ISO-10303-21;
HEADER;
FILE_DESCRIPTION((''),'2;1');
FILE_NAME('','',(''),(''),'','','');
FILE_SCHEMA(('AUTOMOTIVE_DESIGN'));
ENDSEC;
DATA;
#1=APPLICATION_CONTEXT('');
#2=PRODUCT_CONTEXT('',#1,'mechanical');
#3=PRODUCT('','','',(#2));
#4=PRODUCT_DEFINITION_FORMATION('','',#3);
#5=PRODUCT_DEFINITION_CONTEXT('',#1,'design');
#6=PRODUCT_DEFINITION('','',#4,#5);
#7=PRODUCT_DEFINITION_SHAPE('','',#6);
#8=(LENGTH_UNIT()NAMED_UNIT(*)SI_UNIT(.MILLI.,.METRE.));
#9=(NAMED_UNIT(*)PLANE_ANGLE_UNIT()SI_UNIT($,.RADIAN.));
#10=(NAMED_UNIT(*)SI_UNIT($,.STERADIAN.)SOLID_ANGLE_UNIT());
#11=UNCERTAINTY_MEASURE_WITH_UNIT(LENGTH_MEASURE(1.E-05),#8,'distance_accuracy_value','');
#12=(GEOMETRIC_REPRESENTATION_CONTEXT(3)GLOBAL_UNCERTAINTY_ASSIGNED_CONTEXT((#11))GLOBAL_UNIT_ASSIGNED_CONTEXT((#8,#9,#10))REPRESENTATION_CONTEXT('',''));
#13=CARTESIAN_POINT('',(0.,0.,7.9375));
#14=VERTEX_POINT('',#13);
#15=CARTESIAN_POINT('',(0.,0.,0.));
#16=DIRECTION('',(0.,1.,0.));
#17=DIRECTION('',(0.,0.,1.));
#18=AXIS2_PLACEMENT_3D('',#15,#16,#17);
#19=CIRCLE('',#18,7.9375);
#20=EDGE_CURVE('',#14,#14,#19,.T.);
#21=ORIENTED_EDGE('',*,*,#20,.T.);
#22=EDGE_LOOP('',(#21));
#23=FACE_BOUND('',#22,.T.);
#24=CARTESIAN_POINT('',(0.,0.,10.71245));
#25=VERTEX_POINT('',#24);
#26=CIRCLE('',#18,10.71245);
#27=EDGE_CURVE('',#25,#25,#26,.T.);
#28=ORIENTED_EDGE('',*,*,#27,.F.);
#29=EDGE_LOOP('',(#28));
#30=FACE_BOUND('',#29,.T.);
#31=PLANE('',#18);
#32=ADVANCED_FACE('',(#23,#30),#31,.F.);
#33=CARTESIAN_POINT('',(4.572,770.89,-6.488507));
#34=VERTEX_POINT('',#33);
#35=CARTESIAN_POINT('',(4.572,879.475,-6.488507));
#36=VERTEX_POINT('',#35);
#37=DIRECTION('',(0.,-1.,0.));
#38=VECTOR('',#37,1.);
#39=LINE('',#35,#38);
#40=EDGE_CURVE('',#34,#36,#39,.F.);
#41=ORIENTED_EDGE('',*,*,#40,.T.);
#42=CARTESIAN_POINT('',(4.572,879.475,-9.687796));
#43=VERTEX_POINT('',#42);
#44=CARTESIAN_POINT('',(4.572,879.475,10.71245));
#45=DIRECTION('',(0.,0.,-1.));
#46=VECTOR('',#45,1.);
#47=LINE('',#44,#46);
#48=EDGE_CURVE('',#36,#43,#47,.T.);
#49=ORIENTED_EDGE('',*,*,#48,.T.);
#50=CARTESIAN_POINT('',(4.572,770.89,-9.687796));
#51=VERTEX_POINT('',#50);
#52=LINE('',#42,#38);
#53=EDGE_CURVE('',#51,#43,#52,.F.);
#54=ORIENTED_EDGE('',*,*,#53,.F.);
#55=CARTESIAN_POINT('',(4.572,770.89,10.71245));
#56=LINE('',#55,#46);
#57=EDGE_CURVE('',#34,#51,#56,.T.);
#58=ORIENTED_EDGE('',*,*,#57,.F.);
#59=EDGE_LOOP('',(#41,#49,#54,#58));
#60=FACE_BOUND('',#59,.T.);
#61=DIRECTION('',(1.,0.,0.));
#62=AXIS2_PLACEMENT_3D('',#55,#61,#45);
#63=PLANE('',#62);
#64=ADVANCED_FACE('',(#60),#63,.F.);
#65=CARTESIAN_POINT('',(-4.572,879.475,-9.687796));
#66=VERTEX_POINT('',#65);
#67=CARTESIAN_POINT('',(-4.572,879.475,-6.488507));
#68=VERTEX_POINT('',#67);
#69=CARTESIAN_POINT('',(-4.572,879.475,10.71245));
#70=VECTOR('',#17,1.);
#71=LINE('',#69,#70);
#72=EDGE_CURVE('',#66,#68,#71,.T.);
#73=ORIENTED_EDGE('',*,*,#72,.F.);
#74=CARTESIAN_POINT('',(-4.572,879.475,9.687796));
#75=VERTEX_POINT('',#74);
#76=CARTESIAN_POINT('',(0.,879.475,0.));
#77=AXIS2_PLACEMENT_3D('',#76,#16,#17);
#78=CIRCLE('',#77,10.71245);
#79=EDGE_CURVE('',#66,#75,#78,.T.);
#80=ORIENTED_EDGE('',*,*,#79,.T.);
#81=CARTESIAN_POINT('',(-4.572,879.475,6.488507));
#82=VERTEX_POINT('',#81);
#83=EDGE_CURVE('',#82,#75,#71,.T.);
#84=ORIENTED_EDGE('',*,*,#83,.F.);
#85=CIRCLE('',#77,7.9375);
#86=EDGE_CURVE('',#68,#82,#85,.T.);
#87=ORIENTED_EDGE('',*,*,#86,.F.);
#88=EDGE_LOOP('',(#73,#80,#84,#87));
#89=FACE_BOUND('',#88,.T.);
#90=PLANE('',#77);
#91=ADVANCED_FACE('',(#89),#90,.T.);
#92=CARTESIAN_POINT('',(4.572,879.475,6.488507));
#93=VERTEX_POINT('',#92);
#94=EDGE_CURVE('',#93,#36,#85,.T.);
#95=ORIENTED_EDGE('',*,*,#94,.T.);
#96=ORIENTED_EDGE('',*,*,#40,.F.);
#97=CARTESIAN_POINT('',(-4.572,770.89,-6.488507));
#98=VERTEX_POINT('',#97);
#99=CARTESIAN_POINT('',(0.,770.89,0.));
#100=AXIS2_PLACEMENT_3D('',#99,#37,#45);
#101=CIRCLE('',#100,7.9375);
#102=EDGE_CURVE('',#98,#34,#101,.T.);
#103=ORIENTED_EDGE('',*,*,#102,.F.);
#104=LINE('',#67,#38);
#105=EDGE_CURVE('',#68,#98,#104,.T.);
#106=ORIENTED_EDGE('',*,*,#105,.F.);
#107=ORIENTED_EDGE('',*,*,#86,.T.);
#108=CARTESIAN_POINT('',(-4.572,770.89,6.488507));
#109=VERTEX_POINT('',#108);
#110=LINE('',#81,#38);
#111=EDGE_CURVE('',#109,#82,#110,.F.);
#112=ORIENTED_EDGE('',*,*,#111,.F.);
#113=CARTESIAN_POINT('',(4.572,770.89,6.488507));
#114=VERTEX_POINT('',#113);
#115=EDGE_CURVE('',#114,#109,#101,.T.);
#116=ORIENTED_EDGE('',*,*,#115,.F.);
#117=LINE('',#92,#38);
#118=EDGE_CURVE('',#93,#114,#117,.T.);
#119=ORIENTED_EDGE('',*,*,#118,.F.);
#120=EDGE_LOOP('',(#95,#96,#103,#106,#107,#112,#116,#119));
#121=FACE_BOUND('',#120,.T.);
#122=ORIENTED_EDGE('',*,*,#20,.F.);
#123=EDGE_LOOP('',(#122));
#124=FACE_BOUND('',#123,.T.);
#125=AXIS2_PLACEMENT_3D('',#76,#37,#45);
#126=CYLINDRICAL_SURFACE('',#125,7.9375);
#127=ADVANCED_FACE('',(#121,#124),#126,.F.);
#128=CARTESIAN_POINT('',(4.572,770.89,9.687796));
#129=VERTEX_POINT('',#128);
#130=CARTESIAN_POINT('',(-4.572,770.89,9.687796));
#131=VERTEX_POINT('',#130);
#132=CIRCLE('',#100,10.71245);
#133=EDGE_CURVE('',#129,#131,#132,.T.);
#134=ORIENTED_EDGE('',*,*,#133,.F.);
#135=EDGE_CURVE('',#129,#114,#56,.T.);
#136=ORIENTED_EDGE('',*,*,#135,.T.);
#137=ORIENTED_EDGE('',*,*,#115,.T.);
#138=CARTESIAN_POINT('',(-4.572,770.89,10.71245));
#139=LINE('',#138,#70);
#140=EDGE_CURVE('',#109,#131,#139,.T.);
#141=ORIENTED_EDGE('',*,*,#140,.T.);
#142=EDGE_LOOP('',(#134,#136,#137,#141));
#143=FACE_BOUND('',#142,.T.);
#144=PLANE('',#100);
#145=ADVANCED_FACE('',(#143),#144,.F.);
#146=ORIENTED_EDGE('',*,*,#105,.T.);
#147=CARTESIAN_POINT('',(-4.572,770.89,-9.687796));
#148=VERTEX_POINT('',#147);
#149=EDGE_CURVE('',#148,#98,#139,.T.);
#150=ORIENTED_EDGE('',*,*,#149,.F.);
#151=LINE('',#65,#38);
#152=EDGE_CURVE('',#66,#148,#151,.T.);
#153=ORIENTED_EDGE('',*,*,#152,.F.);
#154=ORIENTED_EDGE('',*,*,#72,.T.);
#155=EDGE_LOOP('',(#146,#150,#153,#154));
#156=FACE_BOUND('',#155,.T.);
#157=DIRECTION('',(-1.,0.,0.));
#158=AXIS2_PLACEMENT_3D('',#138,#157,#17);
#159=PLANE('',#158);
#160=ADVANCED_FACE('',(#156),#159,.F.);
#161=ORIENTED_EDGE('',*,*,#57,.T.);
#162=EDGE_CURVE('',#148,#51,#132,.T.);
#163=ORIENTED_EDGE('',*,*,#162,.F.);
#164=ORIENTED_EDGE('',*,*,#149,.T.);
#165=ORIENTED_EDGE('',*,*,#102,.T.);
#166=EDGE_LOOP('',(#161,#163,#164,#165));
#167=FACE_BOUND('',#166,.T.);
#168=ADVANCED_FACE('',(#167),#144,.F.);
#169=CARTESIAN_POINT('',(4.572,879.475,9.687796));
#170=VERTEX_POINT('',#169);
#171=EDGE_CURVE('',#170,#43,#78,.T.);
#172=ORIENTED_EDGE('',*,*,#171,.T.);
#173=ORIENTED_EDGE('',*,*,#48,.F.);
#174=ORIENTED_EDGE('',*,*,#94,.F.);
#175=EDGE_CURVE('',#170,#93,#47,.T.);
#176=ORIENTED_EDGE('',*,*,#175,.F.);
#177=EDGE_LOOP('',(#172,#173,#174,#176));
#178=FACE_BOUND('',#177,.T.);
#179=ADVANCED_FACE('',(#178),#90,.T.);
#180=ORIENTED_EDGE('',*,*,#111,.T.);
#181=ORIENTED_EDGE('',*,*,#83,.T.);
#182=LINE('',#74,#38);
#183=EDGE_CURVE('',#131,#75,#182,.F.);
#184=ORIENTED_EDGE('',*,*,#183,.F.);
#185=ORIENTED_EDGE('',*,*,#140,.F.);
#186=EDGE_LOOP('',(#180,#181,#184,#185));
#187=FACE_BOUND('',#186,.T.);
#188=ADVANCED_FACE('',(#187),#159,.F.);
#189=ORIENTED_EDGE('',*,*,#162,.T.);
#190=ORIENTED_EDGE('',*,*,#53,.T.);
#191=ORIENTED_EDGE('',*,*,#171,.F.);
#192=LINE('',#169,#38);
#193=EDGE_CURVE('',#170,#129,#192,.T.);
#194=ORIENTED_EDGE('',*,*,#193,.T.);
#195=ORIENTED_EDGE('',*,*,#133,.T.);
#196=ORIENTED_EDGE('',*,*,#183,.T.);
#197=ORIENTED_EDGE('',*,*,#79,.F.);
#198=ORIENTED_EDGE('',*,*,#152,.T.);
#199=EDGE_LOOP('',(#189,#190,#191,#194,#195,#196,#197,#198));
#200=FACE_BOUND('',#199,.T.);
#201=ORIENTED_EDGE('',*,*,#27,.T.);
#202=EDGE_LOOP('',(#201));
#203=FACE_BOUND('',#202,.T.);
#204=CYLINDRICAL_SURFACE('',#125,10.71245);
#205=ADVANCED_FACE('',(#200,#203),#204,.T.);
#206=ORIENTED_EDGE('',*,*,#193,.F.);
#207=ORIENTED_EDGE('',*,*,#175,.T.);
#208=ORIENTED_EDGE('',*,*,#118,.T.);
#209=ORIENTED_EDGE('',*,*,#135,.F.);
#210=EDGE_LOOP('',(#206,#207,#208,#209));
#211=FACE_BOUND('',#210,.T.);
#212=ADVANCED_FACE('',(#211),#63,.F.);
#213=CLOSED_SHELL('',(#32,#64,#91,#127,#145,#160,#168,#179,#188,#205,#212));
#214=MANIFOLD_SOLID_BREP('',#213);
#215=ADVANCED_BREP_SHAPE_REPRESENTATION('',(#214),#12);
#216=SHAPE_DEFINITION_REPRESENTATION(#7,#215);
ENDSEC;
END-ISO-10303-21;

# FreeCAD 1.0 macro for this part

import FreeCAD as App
import Part
import Sketcher
Q = App.Units.Quantity


def add_polygon(sketch, points):
    """Adds a closed chain of lines whose ends are joined by coincident constraints."""
    first, n = sketch.GeometryCount, len(points)
    for a, b in zip(points, points[1:] + points[:1]):
        sketch.addGeometry(Part.LineSegment(App.Vector(*a, 0), App.Vector(*b, 0)), False)
    for i in range(n):
        sketch.addConstraint(Sketcher.Constraint("Coincident", first + i, 2, first + (i + 1) % n, 1))

doc = App.newDocument("Part")
body = doc.addObject("PartDesign::Body", "Body")

# Sketch on XZ plane
sketch1 = body.newObject("Sketcher::SketchObject", "Sketch")
sketch1.AttachmentSupport = (doc.getObject("XZ_Plane"), [""])
sketch1.MapMode = "FlatFace"
sketch1.addGeometry([
    Part.Circle(App.Vector(0, 0, 0), App.Vector(0, 0, 1), 11),
    Part.Circle(App.Vector(0, 0, 0), App.Vector(0, 0, 1), 8),
], False)
sketch1.addConstraint([
    Sketcher.Constraint("Coincident", 0, 3, -1, 1),
    Sketcher.Constraint("Coincident", 1, 3, -1, 1),
    Sketcher.Constraint("Diameter", 1, Q("0.625 in")),
    Sketcher.Constraint("Diameter", 0, Q("0.8435 in")),
])
pad1 = body.newObject("PartDesign::Pad", "Pad")
pad1.Profile = sketch1
pad1.Length = Q("34.625 in")
pad1.Reversed = True

# Sketch on XZ plane
sketch2 = body.newObject("Sketcher::SketchObject", "Sketch001")
sketch2.AttachmentSupport = (doc.getObject("XZ_Plane"), [""])
sketch2.MapMode = "FlatFace"
sketch2.AttachmentOffset = App.Placement(App.Vector(0, 0, -34.625 * 25.4), App.Rotation())
add_polygon(sketch2, [(-5, -11), (-5, 11), (5, 11), (5, -11)])  # lines 0-3
sketch2.addConstraint([
    Sketcher.Constraint("Vertical", 0),
    Sketcher.Constraint("Horizontal", 1),
    Sketcher.Constraint("Vertical", 2),
    Sketcher.Constraint("Horizontal", 3),
    Sketcher.Constraint("Symmetric", 0, 2, 2, 2, -1, 1),
    Sketcher.Constraint("DistanceX", 1, 1, 1, 2, Q("0.36 in")),
    Sketcher.Constraint("DistanceY", 0, 1, 0, 2, Q("0.8435 in")),
])
pocket1 = body.newObject("PartDesign::Pocket", "Pocket")
pocket1.Profile = sketch2
pocket1.Length = Q("4.275 in")
pocket1.Reversed = True

doc.recompute()
